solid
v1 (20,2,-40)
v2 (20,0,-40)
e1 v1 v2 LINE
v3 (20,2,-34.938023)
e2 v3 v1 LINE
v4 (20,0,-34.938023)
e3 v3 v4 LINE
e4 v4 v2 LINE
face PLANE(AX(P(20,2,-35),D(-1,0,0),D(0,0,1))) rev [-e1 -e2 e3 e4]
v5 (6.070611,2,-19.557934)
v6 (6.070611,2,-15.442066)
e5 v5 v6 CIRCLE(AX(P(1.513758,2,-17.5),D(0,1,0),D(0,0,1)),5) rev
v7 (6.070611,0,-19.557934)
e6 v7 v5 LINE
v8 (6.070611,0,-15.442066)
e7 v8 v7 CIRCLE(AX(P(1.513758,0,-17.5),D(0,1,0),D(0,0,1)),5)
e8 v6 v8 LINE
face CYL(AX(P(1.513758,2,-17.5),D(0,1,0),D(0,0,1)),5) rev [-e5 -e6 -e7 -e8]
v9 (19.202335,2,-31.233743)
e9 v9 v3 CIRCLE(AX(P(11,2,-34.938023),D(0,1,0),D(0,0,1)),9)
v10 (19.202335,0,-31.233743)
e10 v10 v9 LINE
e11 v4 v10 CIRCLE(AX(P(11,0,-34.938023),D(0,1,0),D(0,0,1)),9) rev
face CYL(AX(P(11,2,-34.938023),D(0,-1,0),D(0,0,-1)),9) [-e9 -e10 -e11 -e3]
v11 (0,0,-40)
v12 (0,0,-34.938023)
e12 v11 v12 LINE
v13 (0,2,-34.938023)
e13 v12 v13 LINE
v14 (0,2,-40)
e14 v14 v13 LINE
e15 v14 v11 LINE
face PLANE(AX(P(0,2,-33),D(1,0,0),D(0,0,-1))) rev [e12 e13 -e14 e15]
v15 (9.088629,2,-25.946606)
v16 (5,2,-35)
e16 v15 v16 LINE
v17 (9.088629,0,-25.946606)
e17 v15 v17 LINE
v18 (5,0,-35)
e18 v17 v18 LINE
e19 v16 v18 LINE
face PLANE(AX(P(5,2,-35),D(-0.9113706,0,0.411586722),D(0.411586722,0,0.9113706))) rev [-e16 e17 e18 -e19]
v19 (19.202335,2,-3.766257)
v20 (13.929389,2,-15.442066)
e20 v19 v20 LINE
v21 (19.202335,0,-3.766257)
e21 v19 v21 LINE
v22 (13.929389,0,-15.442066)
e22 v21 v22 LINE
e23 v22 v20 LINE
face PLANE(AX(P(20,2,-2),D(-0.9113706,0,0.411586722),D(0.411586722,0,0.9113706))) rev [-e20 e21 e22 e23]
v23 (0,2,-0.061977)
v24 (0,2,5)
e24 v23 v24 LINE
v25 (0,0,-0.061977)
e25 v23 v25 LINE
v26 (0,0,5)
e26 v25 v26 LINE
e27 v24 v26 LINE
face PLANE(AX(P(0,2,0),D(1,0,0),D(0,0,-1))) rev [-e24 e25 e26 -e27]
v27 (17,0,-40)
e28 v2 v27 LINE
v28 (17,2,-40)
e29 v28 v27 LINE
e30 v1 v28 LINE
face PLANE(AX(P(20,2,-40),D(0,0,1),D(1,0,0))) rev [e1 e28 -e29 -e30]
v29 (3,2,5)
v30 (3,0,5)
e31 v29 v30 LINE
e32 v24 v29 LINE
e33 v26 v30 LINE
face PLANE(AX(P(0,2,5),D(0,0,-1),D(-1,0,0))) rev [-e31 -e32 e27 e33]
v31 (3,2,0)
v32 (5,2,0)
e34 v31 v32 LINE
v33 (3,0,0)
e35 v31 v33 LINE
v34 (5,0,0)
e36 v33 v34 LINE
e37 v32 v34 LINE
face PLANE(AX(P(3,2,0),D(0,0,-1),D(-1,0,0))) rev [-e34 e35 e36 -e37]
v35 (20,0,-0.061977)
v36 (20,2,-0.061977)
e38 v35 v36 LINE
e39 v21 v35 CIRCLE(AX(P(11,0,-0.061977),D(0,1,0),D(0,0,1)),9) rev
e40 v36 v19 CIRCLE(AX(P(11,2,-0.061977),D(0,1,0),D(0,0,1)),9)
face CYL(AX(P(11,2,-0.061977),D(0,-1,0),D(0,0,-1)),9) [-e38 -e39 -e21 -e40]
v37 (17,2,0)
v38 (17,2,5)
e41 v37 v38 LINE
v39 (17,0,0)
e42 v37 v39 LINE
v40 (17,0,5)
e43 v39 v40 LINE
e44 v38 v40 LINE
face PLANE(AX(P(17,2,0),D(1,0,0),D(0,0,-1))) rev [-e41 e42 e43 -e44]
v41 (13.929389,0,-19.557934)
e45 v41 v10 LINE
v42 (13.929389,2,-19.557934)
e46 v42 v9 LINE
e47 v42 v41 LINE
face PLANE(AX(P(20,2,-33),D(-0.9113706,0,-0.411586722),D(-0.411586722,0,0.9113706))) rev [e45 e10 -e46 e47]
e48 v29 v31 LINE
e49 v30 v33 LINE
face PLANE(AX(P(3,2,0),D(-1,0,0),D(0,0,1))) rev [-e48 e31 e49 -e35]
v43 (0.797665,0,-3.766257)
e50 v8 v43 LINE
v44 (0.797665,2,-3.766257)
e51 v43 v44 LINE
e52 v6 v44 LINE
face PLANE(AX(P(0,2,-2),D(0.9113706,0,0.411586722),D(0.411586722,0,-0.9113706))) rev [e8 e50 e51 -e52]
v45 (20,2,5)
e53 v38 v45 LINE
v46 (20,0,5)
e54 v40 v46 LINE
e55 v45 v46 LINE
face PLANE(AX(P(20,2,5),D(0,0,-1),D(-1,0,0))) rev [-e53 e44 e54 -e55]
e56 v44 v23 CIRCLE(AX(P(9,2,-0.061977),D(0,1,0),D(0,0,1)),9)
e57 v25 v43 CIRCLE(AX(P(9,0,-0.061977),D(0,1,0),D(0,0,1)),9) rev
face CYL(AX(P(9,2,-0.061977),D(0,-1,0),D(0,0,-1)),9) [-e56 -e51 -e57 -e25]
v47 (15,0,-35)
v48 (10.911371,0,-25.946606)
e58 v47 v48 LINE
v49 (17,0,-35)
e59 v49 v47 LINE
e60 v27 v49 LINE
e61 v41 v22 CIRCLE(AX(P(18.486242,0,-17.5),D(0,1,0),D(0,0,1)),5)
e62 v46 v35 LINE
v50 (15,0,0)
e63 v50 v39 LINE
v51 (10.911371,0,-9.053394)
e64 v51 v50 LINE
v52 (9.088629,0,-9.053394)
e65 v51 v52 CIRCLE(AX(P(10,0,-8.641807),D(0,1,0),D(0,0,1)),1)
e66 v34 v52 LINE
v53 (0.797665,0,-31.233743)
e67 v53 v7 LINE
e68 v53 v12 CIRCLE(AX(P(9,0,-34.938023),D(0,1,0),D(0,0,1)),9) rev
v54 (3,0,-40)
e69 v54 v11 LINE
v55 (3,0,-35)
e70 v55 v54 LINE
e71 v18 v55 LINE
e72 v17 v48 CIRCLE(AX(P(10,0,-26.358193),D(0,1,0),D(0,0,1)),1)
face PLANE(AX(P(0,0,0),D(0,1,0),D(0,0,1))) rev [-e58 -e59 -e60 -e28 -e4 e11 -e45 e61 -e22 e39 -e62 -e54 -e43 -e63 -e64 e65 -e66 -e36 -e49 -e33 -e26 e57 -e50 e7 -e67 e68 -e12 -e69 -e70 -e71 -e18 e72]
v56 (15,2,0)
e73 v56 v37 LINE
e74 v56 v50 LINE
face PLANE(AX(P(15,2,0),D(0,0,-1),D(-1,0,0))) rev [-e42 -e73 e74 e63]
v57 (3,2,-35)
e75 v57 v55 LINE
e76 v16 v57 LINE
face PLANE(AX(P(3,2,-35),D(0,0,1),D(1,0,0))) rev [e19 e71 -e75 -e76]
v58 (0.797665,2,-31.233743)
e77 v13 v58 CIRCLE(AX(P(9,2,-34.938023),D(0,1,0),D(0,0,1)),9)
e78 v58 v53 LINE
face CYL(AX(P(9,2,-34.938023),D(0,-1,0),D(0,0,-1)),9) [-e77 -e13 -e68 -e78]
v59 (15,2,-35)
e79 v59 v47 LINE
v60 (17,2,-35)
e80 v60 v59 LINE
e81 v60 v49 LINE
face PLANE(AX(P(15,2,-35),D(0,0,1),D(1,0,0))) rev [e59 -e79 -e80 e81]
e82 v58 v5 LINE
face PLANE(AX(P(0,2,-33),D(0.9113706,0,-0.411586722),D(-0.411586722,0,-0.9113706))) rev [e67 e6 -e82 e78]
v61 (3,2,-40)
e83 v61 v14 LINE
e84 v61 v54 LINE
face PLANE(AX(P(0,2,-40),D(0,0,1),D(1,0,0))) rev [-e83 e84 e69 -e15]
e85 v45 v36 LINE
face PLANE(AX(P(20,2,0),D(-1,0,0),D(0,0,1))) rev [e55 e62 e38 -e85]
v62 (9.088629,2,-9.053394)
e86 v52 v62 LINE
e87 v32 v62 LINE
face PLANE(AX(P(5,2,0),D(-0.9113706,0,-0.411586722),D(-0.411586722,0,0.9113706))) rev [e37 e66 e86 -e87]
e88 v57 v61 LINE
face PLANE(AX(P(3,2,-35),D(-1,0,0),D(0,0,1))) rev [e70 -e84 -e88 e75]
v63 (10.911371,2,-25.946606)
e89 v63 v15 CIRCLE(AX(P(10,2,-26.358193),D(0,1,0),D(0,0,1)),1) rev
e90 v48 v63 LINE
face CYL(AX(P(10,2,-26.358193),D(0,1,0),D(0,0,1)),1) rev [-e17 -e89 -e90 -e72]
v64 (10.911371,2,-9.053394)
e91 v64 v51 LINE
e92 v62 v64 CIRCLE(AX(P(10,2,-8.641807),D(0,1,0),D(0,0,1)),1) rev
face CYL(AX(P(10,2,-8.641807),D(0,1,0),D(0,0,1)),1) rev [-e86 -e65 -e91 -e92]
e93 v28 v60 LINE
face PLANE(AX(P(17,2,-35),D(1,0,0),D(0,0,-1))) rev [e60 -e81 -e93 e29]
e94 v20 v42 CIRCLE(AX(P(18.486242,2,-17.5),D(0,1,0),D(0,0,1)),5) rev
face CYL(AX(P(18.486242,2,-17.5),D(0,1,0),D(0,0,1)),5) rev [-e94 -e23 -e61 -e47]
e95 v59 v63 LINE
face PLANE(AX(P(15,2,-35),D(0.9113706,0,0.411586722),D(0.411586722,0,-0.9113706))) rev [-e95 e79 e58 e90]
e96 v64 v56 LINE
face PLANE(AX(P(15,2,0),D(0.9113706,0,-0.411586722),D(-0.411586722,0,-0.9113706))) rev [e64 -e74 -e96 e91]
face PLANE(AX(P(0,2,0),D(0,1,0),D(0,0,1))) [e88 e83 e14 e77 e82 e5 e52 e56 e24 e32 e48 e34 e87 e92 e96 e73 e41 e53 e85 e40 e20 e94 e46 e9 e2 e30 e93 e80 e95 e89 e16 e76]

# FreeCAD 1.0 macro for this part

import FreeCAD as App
import Part
import Sketcher

V = App.Vector


def edges_at(feature, points):
    """Names of the edges that pass closest to the given points."""
    edges = feature.Shape.Edges
    near = lambda p: min(range(len(edges)), key=lambda i: edges[i].distToShape(Part.Vertex(*p))[0])
    return sorted({f"Edge{near(p) + 1}" for p in points})


def add_polygon(sketch, points):
    """Adds a closed chain of lines whose ends are joined by coincident constraints."""
    first, n = sketch.GeometryCount, len(points)
    for a, b in zip(points, points[1:] + points[:1]):
        sketch.addGeometry(Part.LineSegment(App.Vector(*a, 0), App.Vector(*b, 0)), False)
    for i in range(n):
        sketch.addConstraint(Sketcher.Constraint("Coincident", first + i, 2, first + (i + 1) % n, 1))

doc = App.newDocument("Part")
body = doc.addObject("PartDesign::Body", "Body")

sketch1 = body.newObject("Sketcher::SketchObject", "Sketch")
sketch1.AttachmentSupport = (doc.getObject("XZ_Plane"), [""])
sketch1.MapMode = "FlatFace"
add_polygon(sketch1, [(3, 0), (5, 0), (10, -11.071429), (15, 0), (17, 0), (17, 5), (20, 5), (20, -2), (13, -17.5), (20, -33), (20, -40), (17, -40), (17, -35), (15, -35), (10, -23.928571), (5, -35), (3, -35), (3, -40), (0, -40), (0, -33), (7, -17.5), (0, -2), (0, 5), (3, 5)])
sketch1.addConstraint([
    Sketcher.Constraint("Horizontal", 0),
    Sketcher.Constraint("Horizontal", 3),
    Sketcher.Constraint("Vertical", 4),
    Sketcher.Constraint("Horizontal", 5),
    Sketcher.Constraint("Vertical", 6),
    Sketcher.Constraint("Vertical", 9),
    Sketcher.Constraint("Horizontal", 10),
    Sketcher.Constraint("Vertical", 11),
    Sketcher.Constraint("Horizontal", 12),
    Sketcher.Constraint("Horizontal", 15),
    Sketcher.Constraint("Vertical", 16),
    Sketcher.Constraint("Horizontal", 17),
    Sketcher.Constraint("Vertical", 18),
    Sketcher.Constraint("Vertical", 21),
    Sketcher.Constraint("Horizontal", 22),
    Sketcher.Constraint("Vertical", 23),
    Sketcher.Constraint("PointOnObject", 0, 2, -1),
    Sketcher.Constraint("PointOnObject", 2, 2, -1),
    Sketcher.Constraint("PointOnObject", 17, 2, -2),
    Sketcher.Constraint("PointOnObject", 20, 2, -2),
    Sketcher.Constraint("Parallel", 2, 7),
    Sketcher.Constraint("Parallel", 1, 8),
    Sketcher.Constraint("Parallel", 8, 13),
    Sketcher.Constraint("Parallel", 7, 14),
    Sketcher.Constraint("Parallel", 14, 19),
    Sketcher.Constraint("Parallel", 13, 20),
    Sketcher.Constraint("Horizontal", 12, 2, 14, 2),
    Sketcher.Constraint("Horizontal", 10, 2, 16, 2),
    Sketcher.Constraint("Horizontal", 8, 2, 18, 2),
    Sketcher.Constraint("Horizontal", 7, 2, 19, 2),
    Sketcher.Constraint("Horizontal", 6, 2, 20, 2),
    Sketcher.Constraint("Horizontal", 5, 2, 21, 2),
    Sketcher.Constraint("Vertical", 6, 2, 8, 2),
    Sketcher.Constraint("Vertical", 4, 2, 10, 2),
    Sketcher.Constraint("Vertical", 2, 2, 12, 2),
    Sketcher.Constraint("Vertical", 1, 2, 13, 2),
    Sketcher.Constraint("Vertical", 16, 2, 22, 2),
    Sketcher.Constraint("Equal", 0, 3),
    Sketcher.Constraint("Equal", 10, 17),
    Sketcher.Constraint("Equal", 6, 9),
    Sketcher.Constraint("Equal", 4, 11),
    Sketcher.Constraint("DistanceX", 0, 1, 0, 2, 2.0),
    Sketcher.Constraint("DistanceX", 5, 1, 5, 2, 3.0),
    Sketcher.Constraint("DistanceY", 4, 1, 4, 2, 5.0),
    Sketcher.Constraint("DistanceY", 6, 2, 6, 1, 7.0),
    Sketcher.Constraint("DistanceX", -1, 1, 1, 2, 10.0),
    Sketcher.Constraint("DistanceX", -1, 1, 7, 2, 13.0),
    Sketcher.Constraint("DistanceY", 8, 2, -1, 1, 33.0),
])
pad1 = body.newObject("PartDesign::Pad", "Pad")
pad1.Profile = sketch1
pad1.Length = 2
pad1.Reversed = True
doc.recompute()

fillet = body.newObject("PartDesign::Fillet", "Fillet")
fillet.Base = (pad1, edges_at(pad1, [(10, 1, -23.929), (10, 1, -11.071)]))
fillet.Radius = 1
doc.recompute()

fillet2 = body.newObject("PartDesign::Fillet", "Fillet001")
fillet2.Base = (fillet, edges_at(fillet, [(7, 1, -17.5), (13, 1, -17.5)]))
fillet2.Radius = 5
doc.recompute()

fillet3 = body.newObject("PartDesign::Fillet", "Fillet002")
fillet3.Base = (fillet2, edges_at(fillet2, [
    (0, 1, -2),
    (0, 1, -33),
    (20, 1, -33),
    (20, 1, -2),
]))
fillet3.Radius = 9

doc.recompute()
